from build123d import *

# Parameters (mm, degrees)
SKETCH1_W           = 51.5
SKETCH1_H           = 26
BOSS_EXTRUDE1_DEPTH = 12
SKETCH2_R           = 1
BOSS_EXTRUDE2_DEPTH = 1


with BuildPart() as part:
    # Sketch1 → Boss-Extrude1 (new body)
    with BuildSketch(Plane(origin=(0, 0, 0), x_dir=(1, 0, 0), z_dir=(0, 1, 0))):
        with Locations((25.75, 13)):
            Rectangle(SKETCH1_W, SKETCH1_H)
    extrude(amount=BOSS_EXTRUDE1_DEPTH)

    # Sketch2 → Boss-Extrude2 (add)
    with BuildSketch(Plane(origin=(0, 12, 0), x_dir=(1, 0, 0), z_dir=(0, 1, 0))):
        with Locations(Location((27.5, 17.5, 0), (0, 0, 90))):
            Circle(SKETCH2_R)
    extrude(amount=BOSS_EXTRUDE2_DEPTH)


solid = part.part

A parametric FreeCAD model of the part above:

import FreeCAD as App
import Part
import Sketcher
from FreeCAD import Vector


def add_polygon(sketch, points):
    """Adds a closed chain of lines whose ends are joined by coincident constraints."""
    first, n = sketch.GeometryCount, len(points)
    for a, b in zip(points, points[1:] + points[:1]):
        sketch.addGeometry(Part.LineSegment(App.Vector(*a, 0), App.Vector(*b, 0)), False)
    for i in range(n):
        sketch.addConstraint(Sketcher.Constraint("Coincident", first + i, 2, first + (i + 1) % n, 1))

doc = App.newDocument("Part")
body = doc.addObject("PartDesign::Body", "Body")

sketch1 = body.newObject("Sketcher::SketchObject", "Sketch")
sketch1.AttachmentSupport = (doc.getObject("XZ_Plane"), [""])
sketch1.MapMode = "FlatFace"
add_polygon(sketch1, [(0, -26), (0, 0), (52, 0), (52, -26)])
sketch1.addConstraint([
    Sketcher.Constraint("Vertical", 0),
    Sketcher.Constraint("Horizontal", 1),
    Sketcher.Constraint("Vertical", 2),
    Sketcher.Constraint("Horizontal", 3),
    Sketcher.Constraint("Coincident", 0, 2, -1, 1),
    Sketcher.Constraint("DistanceY", 0, 1, 0, 2, 26.0),
    Sketcher.Constraint("DistanceX", 1, 1, 1, 2, 51.5),
])
pad1 = body.newObject("PartDesign::Pad", "Pad")
pad1.Profile = sketch1
pad1.Length = 12
pad1.Reversed = True

sketch2 = body.newObject("Sketcher::SketchObject", "Sketch001")
sketch2.AttachmentSupport = (doc.getObject("XZ_Plane"), [""])
sketch2.MapMode = "FlatFace"
sketch2.AttachmentOffset = App.Placement(Vector(0, 0, -12), App.Rotation())
sketch2.addGeometry(Part.Circle(Vector(27.5, -17.5, 0), Vector(0, 0, 1), 1), False)
sketch2.addConstraint([
    Sketcher.Constraint("Diameter", 0, 2.0),
    Sketcher.Constraint("DistanceX", -1, 1, 0, 3, 27.5),
    Sketcher.Constraint("DistanceY", 0, 3, -1, 1, 17.5),
])
pad2 = body.newObject("PartDesign::Pad", "Pad001")
pad2.Profile = sketch2
pad2.Length = 1
pad2.Reversed = True

doc.recompute()
